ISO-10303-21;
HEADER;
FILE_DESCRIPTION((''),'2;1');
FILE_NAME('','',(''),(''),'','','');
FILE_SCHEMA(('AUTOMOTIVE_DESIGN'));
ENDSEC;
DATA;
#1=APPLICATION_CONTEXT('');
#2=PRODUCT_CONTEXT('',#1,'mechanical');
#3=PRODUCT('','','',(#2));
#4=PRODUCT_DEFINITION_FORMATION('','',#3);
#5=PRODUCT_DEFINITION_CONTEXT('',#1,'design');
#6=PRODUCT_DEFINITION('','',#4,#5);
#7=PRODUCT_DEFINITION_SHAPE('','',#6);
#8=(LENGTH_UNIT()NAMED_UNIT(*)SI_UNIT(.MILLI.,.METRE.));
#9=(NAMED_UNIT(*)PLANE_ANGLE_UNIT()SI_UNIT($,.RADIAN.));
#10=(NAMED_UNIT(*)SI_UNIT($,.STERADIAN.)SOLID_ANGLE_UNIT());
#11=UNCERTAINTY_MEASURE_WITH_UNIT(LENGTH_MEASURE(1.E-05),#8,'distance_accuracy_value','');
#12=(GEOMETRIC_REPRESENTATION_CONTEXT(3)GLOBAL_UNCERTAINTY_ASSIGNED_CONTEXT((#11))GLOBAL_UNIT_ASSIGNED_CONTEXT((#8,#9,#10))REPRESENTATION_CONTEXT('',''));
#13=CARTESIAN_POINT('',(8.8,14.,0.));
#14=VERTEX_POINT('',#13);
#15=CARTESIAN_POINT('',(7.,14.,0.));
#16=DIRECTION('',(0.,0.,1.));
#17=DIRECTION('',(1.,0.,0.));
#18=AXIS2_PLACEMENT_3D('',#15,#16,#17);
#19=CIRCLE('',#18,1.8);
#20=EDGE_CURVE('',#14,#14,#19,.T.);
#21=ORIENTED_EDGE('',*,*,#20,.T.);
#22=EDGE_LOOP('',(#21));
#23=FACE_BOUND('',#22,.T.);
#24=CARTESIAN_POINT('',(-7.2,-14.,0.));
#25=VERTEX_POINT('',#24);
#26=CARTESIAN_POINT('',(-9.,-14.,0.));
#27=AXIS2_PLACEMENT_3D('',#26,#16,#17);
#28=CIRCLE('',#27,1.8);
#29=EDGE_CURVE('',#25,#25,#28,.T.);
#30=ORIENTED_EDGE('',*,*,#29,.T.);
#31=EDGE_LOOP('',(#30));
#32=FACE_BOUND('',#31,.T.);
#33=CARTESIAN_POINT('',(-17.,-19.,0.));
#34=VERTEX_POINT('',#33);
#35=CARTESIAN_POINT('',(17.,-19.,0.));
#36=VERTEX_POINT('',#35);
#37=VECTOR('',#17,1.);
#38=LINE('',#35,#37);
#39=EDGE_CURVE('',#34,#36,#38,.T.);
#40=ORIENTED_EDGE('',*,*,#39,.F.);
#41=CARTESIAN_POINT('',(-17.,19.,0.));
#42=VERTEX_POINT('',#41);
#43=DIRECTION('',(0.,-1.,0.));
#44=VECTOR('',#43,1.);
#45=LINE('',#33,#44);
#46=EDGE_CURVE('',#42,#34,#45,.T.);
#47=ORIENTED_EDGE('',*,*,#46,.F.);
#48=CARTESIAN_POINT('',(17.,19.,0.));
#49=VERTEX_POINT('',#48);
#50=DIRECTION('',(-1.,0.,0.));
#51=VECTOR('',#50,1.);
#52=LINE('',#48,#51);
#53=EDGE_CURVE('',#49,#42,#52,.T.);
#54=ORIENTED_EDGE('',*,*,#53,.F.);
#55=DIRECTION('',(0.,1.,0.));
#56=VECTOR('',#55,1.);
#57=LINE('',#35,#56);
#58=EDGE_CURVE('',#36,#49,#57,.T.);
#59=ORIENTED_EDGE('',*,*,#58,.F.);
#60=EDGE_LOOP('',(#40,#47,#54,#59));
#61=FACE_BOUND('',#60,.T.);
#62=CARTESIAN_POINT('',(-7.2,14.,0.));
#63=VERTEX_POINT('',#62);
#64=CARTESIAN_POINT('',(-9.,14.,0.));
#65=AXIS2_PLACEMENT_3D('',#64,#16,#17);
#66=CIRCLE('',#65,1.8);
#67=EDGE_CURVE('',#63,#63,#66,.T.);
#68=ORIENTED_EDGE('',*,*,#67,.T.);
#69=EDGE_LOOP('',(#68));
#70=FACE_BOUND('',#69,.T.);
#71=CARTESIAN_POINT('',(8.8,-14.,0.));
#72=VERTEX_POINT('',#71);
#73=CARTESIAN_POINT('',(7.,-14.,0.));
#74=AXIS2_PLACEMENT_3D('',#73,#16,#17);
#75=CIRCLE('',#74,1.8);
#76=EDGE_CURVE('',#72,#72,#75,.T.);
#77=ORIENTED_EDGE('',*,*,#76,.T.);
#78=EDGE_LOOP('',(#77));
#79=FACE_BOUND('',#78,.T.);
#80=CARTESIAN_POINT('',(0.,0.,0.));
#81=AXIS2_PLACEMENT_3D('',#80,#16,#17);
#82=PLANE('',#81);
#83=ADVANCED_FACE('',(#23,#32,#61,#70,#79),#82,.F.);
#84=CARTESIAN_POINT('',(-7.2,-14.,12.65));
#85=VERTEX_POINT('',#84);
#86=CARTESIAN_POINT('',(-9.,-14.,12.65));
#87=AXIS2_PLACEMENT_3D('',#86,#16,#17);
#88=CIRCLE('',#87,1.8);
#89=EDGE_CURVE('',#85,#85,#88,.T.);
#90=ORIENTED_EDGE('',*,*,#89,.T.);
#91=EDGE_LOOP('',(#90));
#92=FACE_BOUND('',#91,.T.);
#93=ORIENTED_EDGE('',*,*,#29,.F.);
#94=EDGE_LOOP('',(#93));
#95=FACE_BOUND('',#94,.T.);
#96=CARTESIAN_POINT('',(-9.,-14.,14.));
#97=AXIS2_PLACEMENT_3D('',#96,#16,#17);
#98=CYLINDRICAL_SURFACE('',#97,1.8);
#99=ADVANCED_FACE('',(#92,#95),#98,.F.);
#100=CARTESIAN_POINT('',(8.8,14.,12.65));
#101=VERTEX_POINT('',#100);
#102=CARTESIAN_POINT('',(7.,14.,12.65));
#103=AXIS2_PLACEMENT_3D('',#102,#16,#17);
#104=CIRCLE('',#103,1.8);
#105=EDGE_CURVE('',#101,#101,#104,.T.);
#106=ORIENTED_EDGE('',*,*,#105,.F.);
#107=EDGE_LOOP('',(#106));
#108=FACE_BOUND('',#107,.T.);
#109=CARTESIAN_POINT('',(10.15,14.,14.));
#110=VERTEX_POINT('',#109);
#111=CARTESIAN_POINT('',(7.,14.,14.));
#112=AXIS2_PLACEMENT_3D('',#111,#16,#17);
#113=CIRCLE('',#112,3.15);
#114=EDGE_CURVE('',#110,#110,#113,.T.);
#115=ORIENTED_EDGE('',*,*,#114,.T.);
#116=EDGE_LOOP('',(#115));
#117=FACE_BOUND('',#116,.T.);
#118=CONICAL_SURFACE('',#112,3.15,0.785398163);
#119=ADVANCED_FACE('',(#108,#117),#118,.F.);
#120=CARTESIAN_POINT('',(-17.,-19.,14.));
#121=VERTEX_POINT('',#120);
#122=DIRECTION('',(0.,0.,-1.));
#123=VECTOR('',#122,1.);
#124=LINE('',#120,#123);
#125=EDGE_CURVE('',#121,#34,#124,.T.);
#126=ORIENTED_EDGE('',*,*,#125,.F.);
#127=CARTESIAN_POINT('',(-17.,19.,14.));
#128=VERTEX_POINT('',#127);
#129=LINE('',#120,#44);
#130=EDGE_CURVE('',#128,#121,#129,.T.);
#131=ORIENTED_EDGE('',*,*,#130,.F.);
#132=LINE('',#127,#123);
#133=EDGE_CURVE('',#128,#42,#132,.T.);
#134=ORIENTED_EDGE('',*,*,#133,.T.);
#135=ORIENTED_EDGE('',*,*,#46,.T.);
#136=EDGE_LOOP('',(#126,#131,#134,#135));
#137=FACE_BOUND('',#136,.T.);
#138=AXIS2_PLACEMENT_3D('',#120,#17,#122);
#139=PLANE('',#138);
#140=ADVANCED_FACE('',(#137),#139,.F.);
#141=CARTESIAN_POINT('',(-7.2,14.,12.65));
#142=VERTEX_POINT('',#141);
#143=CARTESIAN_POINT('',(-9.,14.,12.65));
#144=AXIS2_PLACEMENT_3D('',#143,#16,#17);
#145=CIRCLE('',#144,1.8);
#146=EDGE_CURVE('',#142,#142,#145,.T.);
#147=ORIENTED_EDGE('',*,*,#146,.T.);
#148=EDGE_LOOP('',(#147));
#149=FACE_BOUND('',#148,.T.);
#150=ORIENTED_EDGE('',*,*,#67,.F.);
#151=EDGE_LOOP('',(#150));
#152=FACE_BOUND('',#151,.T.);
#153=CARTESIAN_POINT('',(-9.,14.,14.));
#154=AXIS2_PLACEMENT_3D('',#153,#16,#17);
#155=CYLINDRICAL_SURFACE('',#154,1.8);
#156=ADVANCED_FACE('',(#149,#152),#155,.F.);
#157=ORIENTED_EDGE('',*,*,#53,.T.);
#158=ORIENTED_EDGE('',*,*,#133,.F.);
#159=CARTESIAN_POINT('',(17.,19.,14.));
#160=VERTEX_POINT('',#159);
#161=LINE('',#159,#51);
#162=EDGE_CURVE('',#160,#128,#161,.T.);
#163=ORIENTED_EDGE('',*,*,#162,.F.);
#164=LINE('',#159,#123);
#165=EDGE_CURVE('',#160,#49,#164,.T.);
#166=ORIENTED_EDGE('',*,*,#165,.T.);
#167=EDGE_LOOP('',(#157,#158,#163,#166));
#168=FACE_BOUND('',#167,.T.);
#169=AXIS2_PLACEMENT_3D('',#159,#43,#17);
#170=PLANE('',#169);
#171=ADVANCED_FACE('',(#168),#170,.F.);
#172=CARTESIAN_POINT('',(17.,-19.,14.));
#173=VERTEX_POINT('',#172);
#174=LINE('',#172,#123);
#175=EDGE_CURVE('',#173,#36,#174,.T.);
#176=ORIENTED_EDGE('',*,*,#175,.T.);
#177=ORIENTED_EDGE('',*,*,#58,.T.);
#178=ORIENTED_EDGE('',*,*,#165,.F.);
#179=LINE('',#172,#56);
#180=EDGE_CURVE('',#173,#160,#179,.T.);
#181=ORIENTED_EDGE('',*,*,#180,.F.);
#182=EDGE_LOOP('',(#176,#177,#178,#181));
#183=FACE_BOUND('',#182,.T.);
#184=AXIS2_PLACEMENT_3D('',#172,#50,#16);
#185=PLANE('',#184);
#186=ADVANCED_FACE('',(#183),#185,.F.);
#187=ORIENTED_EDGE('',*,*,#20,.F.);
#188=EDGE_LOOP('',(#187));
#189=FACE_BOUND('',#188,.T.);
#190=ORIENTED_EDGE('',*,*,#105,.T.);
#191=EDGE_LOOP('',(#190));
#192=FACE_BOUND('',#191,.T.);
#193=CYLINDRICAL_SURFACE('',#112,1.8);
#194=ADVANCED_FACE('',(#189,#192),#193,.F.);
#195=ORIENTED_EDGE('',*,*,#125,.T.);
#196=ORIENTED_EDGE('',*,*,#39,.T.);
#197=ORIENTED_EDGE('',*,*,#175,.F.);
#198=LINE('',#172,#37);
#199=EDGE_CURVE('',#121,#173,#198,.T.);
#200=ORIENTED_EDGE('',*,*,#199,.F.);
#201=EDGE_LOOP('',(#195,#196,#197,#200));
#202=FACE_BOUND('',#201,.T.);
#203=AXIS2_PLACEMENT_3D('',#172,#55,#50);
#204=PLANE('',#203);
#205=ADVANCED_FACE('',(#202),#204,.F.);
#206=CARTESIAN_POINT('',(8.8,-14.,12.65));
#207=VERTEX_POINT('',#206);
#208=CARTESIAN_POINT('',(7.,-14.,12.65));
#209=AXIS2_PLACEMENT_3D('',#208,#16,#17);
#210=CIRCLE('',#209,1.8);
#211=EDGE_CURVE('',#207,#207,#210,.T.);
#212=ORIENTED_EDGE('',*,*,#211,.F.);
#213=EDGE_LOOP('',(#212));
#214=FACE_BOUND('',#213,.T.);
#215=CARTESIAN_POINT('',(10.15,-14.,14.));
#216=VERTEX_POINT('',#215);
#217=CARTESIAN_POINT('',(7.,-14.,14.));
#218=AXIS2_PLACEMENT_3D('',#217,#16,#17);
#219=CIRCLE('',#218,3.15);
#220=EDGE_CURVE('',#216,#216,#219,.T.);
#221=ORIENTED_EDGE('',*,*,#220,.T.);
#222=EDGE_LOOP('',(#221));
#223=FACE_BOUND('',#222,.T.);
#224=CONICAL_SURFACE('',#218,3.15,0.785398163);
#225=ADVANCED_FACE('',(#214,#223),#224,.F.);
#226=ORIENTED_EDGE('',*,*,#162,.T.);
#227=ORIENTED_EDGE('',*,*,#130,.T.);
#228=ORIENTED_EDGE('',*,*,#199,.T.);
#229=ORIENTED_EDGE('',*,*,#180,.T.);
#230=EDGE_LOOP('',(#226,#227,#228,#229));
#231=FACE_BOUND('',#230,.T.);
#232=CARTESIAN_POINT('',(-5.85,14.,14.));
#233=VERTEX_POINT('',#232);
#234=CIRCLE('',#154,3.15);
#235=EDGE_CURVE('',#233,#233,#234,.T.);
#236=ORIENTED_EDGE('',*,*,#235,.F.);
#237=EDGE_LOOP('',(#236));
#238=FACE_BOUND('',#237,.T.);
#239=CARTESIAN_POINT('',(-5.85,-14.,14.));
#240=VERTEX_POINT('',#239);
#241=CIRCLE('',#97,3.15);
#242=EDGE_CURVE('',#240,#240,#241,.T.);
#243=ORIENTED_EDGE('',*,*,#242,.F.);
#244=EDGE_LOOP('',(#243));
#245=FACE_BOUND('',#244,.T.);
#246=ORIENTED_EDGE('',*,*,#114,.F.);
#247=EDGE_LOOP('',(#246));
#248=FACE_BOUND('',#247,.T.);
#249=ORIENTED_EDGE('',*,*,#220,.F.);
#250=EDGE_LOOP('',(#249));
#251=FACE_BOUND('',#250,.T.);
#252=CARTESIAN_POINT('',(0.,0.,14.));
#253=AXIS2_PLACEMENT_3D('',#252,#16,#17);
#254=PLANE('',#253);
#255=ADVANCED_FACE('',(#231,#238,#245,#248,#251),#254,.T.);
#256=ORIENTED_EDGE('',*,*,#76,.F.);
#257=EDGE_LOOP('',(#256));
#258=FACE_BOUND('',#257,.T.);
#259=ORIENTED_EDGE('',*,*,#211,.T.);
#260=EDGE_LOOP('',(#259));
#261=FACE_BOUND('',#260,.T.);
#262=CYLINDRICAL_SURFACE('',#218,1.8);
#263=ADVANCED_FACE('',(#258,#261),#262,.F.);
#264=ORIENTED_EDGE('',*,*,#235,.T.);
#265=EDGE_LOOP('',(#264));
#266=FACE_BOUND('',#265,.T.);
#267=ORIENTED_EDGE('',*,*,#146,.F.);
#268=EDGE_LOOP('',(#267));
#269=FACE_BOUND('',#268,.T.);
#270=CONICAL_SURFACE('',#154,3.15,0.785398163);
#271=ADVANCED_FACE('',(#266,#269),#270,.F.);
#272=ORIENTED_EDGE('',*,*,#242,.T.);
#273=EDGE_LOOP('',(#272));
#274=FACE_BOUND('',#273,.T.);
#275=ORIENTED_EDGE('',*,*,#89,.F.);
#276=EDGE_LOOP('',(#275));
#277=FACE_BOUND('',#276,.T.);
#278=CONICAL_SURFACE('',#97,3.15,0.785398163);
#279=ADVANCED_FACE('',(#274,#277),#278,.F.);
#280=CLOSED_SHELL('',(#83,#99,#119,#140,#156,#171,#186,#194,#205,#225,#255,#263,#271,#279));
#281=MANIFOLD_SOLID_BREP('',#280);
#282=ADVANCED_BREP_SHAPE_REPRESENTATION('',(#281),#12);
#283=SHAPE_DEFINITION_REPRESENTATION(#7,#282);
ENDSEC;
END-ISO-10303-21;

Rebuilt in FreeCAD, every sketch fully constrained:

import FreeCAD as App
import Part
import Sketcher

V = App.Vector
Q = App.Units.Quantity

doc = App.newDocument("Part")
params = doc.addObject("Spreadsheet::Sheet", "Params")
for row, (alias, value) in enumerate([
    ("sketch1_width", "34 mm"),
    ("sketch1_height", "38 mm"),
    ("pad1_length", "14 mm"),
    ("sketch2_diameter", "3.6 mm"),
    ("hole_diameter", "3.6 mm"),
    ("hole_csink_diameter", "6.3 mm"),
], start=1):
    params.set(f"A{row}", alias)
    params.set(f"B{row}", "=" + value)
    params.setAlias(f"B{row}", alias)

body = doc.addObject("PartDesign::Body", "Body")

# Sketch on XY plane
sketch1 = doc.addObject("Sketcher::SketchObject", "Sketch")
body.addObject(sketch1)
sketch1.AttachmentSupport = (doc.XY_Plane, [""])
sketch1.MapMode = "FlatFace"
sketch1.addGeometry(Part.LineSegment(V(-17, 19, 0), V(-17, -19, 0)), False)
sketch1.addGeometry(Part.LineSegment(V(-17, -19, 0), V(17, -19, 0)), False)
sketch1.addGeometry(Part.LineSegment(V(17, -19, 0), V(17, 19, 0)), False)
sketch1.addGeometry(Part.LineSegment(V(17, 19, 0), V(-17, 19, 0)), False)
sketch1.addConstraint(Sketcher.Constraint("Coincident", 0, 2, 1, 1))
sketch1.addConstraint(Sketcher.Constraint("Coincident", 1, 2, 2, 1))
sketch1.addConstraint(Sketcher.Constraint("Coincident", 2, 2, 3, 1))
sketch1.addConstraint(Sketcher.Constraint("Coincident", 3, 2, 0, 1))
sketch1.addConstraint(Sketcher.Constraint("Vertical", 0))
sketch1.addConstraint(Sketcher.Constraint("Horizontal", 1))
sketch1.addConstraint(Sketcher.Constraint("Vertical", 2))
sketch1.addConstraint(Sketcher.Constraint("Horizontal", 3))
sketch1.addConstraint(Sketcher.Constraint("Symmetric", 0, 2, 2, 2, -1, 1))
sketch1.addConstraint(Sketcher.Constraint("DistanceX", 1, 1, 1, 2, Q("34 mm")))
sketch1.addConstraint(Sketcher.Constraint("DistanceY", 0, 2, 0, 1, Q("38 mm")))
sketch1.setExpression("Constraints[9]", "Params.sketch1_width")
sketch1.setExpression("Constraints[10]", "Params.sketch1_height")
pad1 = doc.addObject("PartDesign::Pad", "Pad")
body.addObject(pad1)
pad1.Profile = sketch1
pad1.setExpression("Length", "Params.pad1_length")

# Sketch on XY plane
sketch2 = doc.addObject("Sketcher::SketchObject", "Sketch001")
body.addObject(sketch2)
sketch2.AttachmentSupport = (doc.XY_Plane, [""])
sketch2.MapMode = "FlatFace"
sketch2.AttachmentOffset = App.Placement(V(0, 0, 14), App.Rotation())
sketch2.addGeometry(Part.Circle(V(-9, 14, 0), V(0, 0, 1), 1.8), False)
sketch2.addGeometry(Part.Circle(V(-9, -14, 0), V(0, 0, 1), 1.8), False)
sketch2.addGeometry(Part.Circle(V(7, -14, 0), V(0, 0, 1), 1.8), False)
sketch2.addGeometry(Part.Circle(V(7, 14, 0), V(0, 0, 1), 1.8), False)
sketch2.addConstraint(Sketcher.Constraint("Equal", 0, 1))
sketch2.addConstraint(Sketcher.Constraint("Equal", 1, 2))
sketch2.addConstraint(Sketcher.Constraint("Equal", 2, 3))
sketch2.addConstraint(Sketcher.Constraint("Symmetric", 0, 3, 1, 3, -1))
sketch2.addConstraint(Sketcher.Constraint("Symmetric", 2, 3, 3, 3, -1))
sketch2.addConstraint(Sketcher.Constraint("Horizontal", 1, 3, 2, 3))
sketch2.addConstraint(Sketcher.Constraint("Diameter", 0, Q("3.6 mm")))
sketch2.addConstraint(Sketcher.Constraint("DistanceX", 0, 3, -1, 1, Q("9 mm")))
sketch2.addConstraint(Sketcher.Constraint("DistanceY", -1, 1, 0, 3, Q("14 mm")))
sketch2.addConstraint(Sketcher.Constraint("DistanceX", -1, 1, 2, 3, Q("7 mm")))
sketch2.setExpression("Constraints[6]", "Params.sketch2_diameter")
doc.recompute()
hole = doc.addObject("PartDesign::Hole", "Hole")
body.addObject(hole)
hole.Profile = sketch2
hole.ThreadType = "None"
hole.setExpression("Diameter", "Params.hole_diameter")
hole.DepthType = "ThroughAll"
hole.HoleCutType = "Countersink"
hole.setExpression("HoleCutDiameter", "Params.hole_csink_diameter")
hole.HoleCutCountersinkAngle = 90

doc.recompute()
